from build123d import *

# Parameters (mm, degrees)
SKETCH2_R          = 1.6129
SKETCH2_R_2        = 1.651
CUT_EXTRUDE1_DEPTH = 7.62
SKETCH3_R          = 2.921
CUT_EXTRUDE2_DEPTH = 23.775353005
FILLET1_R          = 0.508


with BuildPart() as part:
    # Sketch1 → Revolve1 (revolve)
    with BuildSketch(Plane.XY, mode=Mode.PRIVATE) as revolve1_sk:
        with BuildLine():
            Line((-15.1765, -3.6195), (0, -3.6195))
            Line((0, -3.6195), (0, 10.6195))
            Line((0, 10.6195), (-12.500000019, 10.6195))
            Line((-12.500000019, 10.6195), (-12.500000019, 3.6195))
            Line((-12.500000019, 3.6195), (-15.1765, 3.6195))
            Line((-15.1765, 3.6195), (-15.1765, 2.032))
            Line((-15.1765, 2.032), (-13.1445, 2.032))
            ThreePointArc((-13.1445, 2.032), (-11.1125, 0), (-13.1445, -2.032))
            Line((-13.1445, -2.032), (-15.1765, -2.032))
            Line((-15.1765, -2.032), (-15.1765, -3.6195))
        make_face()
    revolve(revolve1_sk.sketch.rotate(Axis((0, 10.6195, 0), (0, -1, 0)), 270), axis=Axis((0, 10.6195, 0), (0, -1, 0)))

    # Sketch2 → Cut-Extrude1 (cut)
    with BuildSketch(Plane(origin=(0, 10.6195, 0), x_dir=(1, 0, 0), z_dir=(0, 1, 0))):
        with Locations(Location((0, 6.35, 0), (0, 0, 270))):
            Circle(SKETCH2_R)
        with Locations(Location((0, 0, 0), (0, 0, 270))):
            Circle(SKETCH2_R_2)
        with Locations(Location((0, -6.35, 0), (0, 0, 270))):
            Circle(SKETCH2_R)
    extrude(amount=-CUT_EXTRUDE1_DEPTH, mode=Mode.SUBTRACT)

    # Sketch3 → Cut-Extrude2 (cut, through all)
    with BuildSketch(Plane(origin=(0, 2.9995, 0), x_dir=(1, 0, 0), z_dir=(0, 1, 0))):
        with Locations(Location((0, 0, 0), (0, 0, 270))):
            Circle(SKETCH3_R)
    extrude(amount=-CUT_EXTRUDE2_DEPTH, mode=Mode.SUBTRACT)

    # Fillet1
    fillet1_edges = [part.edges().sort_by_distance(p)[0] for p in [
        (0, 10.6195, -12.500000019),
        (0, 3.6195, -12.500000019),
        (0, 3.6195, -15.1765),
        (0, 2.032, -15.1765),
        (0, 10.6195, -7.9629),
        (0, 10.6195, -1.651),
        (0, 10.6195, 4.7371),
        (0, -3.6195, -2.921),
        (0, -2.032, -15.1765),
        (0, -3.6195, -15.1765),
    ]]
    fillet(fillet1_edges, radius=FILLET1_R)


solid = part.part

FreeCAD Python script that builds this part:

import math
import FreeCAD as App
import Part
import Sketcher

V = App.Vector
Q = App.Units.Quantity


def edges_at(feature, points):
    """Names of the edges that pass closest to the given points."""
    edges = feature.Shape.Edges
    near = lambda p: min(range(len(edges)), key=lambda i: edges[i].distToShape(Part.Vertex(*p))[0])
    return sorted({f"Edge{near(p) + 1}" for p in points})

doc = App.newDocument("Part")
body = doc.addObject("PartDesign::Body", "Body")

# Sketch on XY plane
sketch1 = body.newObject("Sketcher::SketchObject", "Sketch")
sketch1.AttachmentSupport = (doc.getObject("XY_Plane"), [""])
sketch1.MapMode = "FlatFace"
sketch1.addGeometry([
    Part.LineSegment(V(-15.2, -3.6, 0), V(0, -3.6, 0)),  # 0
    Part.LineSegment(V(0, -3.6, 0), V(0, 10.6, 0)),  # 1
    Part.LineSegment(V(0, 10.6, 0), V(-12.5, 10.6, 0)),  # 2
    Part.LineSegment(V(-12.5, 10.6, 0), V(-12.5, 3.6, 0)),  # 3
    Part.LineSegment(V(-12.5, 3.6, 0), V(-15.2, 3.6, 0)),  # 4
    Part.LineSegment(V(-15.2, 3.6, 0), V(-15.2, 2, 0)),  # 5
    Part.LineSegment(V(-15.2, 2, 0), V(-13.1, 2, 0)),  # 6
    Part.ArcOfCircle(Part.Circle(V(-13.1, 0, 0), V(0, 0, 1), 2), math.radians(-90), math.radians(90)),  # 7
    Part.LineSegment(V(-13.1, -2, 0), V(-15.2, -2, 0)),  # 8
    Part.LineSegment(V(-15.2, -2, 0), V(-15.2, -3.6, 0)),  # 9
], False)
sketch1.addConstraint([
    Sketcher.Constraint("Coincident", 0, 2, 1, 1),
    Sketcher.Constraint("Coincident", 1, 2, 2, 1),
    Sketcher.Constraint("Coincident", 2, 2, 3, 1),
    Sketcher.Constraint("Coincident", 3, 2, 4, 1),
    Sketcher.Constraint("Coincident", 4, 2, 5, 1),
    Sketcher.Constraint("Coincident", 5, 2, 6, 1),
    Sketcher.Constraint("Tangent", 6, 2, 7, 2),
    Sketcher.Constraint("Tangent", 7, 1, 8, 1),
    Sketcher.Constraint("Coincident", 8, 2, 9, 1),
    Sketcher.Constraint("Coincident", 9, 2, 0, 1),
    Sketcher.Constraint("Horizontal", 0),
    Sketcher.Constraint("Vertical", 1),
    Sketcher.Constraint("Horizontal", 2),
    Sketcher.Constraint("Vertical", 3),
    Sketcher.Constraint("Horizontal", 4),
    Sketcher.Constraint("Vertical", 5),
    Sketcher.Constraint("Horizontal", 6),
    Sketcher.Constraint("Horizontal", 8),
    Sketcher.Constraint("Vertical", 9),
    Sketcher.Constraint("Symmetric", 5, 2, 8, 2, -1),
    Sketcher.Constraint("PointOnObject", 0, 2, -2),
    Sketcher.Constraint("Equal", 5, 9),
    Sketcher.Constraint("Radius", 7, Q("0.08 in")),
    Sketcher.Constraint("DistanceX", 6, 1, 6, 2, Q("0.08 in")),
    Sketcher.Constraint("DistanceY", 5, 2, 5, 1, Q("0.0625 in")),
    Sketcher.Constraint("DistanceX", 0, 1, 0, 2, Q("0.5975 in")),
    Sketcher.Constraint("DistanceX", 2, 2, 2, 1, Q("12.5 mm")),
    Sketcher.Constraint("DistanceY", 1, 1, 1, 2, Q("14.239 mm")),
])
revolution = body.newObject("PartDesign::Revolution", "Revolution")
revolution.Profile = sketch1
revolution.ReferenceAxis = (sketch1, ["V_Axis"])
revolution.Angle = 360

# Sketch on XZ plane
sketch2 = body.newObject("Sketcher::SketchObject", "Sketch001")
sketch2.AttachmentSupport = (doc.getObject("XZ_Plane"), [""])
sketch2.MapMode = "FlatFace"
sketch2.AttachmentOffset = App.Placement(V(0, 0, -10.6195), App.Rotation())
sketch2.addGeometry([
    Part.Circle(V(0, -6.3, 0), V(0, 0, 1), 1.6),
    Part.Circle(V(0, 0, 0), V(0, 0, 1), 1.7),
    Part.Circle(V(0, 6.3, 0), V(0, 0, 1), 1.6),
], False)
sketch2.addConstraint([
    Sketcher.Constraint("Coincident", 1, 3, -1, 1),
    Sketcher.Constraint("Equal", 0, 2),
    Sketcher.Constraint("Symmetric", 0, 3, 2, 3, -1, 1),
    Sketcher.Constraint("PointOnObject", 0, 3, -2),
    Sketcher.Constraint("Diameter", 1, Q("0.13 in")),
    Sketcher.Constraint("Diameter", 0, Q("0.127 in")),
    Sketcher.Constraint("DistanceY", 0, 3, 2, 3, Q("0.5 in")),
])
pocket1 = body.newObject("PartDesign::Pocket", "Pocket")
pocket1.Profile = sketch2
pocket1.Length = Q("0.3 in")
pocket1.Reversed = True

# Sketch on XZ plane
sketch3 = body.newObject("Sketcher::SketchObject", "Sketch002")
sketch3.AttachmentSupport = (doc.getObject("XZ_Plane"), [""])
sketch3.MapMode = "FlatFace"
sketch3.AttachmentOffset = App.Placement(V(0, 0, -2.9995), App.Rotation())
sketch3.addGeometry(Part.Circle(V(0, 0, 0), V(0, 0, 1), 2.9), False)
sketch3.addConstraint([
    Sketcher.Constraint("Coincident", 0, 3, -1, 1),
    Sketcher.Constraint("Diameter", 0, Q("0.23 in")),
])
pocket2 = body.newObject("PartDesign::Pocket", "Pocket001")
pocket2.Profile = sketch3
pocket2.Type = "ThroughAll"
pocket2.Reversed = True
doc.recompute()

fillet = body.newObject("PartDesign::Fillet", "Fillet")
fillet.Base = (pocket2, edges_at(pocket2, [
    (0, 10.62, -12.5),
    (0, 3.619, -12.5),
    (0, 3.619, -15.177),
    (0, 2.032, -15.177),
    (0, 10.62, -7.963),
    (0, 10.62, -1.651),
    (0, 10.62, 4.737),
    (0, -3.619, -2.921),
    (0, -2.032, -15.177),
    (0, -3.619, -15.177),
]))
fillet.Radius = Q("0.02 in")

doc.recompute()
